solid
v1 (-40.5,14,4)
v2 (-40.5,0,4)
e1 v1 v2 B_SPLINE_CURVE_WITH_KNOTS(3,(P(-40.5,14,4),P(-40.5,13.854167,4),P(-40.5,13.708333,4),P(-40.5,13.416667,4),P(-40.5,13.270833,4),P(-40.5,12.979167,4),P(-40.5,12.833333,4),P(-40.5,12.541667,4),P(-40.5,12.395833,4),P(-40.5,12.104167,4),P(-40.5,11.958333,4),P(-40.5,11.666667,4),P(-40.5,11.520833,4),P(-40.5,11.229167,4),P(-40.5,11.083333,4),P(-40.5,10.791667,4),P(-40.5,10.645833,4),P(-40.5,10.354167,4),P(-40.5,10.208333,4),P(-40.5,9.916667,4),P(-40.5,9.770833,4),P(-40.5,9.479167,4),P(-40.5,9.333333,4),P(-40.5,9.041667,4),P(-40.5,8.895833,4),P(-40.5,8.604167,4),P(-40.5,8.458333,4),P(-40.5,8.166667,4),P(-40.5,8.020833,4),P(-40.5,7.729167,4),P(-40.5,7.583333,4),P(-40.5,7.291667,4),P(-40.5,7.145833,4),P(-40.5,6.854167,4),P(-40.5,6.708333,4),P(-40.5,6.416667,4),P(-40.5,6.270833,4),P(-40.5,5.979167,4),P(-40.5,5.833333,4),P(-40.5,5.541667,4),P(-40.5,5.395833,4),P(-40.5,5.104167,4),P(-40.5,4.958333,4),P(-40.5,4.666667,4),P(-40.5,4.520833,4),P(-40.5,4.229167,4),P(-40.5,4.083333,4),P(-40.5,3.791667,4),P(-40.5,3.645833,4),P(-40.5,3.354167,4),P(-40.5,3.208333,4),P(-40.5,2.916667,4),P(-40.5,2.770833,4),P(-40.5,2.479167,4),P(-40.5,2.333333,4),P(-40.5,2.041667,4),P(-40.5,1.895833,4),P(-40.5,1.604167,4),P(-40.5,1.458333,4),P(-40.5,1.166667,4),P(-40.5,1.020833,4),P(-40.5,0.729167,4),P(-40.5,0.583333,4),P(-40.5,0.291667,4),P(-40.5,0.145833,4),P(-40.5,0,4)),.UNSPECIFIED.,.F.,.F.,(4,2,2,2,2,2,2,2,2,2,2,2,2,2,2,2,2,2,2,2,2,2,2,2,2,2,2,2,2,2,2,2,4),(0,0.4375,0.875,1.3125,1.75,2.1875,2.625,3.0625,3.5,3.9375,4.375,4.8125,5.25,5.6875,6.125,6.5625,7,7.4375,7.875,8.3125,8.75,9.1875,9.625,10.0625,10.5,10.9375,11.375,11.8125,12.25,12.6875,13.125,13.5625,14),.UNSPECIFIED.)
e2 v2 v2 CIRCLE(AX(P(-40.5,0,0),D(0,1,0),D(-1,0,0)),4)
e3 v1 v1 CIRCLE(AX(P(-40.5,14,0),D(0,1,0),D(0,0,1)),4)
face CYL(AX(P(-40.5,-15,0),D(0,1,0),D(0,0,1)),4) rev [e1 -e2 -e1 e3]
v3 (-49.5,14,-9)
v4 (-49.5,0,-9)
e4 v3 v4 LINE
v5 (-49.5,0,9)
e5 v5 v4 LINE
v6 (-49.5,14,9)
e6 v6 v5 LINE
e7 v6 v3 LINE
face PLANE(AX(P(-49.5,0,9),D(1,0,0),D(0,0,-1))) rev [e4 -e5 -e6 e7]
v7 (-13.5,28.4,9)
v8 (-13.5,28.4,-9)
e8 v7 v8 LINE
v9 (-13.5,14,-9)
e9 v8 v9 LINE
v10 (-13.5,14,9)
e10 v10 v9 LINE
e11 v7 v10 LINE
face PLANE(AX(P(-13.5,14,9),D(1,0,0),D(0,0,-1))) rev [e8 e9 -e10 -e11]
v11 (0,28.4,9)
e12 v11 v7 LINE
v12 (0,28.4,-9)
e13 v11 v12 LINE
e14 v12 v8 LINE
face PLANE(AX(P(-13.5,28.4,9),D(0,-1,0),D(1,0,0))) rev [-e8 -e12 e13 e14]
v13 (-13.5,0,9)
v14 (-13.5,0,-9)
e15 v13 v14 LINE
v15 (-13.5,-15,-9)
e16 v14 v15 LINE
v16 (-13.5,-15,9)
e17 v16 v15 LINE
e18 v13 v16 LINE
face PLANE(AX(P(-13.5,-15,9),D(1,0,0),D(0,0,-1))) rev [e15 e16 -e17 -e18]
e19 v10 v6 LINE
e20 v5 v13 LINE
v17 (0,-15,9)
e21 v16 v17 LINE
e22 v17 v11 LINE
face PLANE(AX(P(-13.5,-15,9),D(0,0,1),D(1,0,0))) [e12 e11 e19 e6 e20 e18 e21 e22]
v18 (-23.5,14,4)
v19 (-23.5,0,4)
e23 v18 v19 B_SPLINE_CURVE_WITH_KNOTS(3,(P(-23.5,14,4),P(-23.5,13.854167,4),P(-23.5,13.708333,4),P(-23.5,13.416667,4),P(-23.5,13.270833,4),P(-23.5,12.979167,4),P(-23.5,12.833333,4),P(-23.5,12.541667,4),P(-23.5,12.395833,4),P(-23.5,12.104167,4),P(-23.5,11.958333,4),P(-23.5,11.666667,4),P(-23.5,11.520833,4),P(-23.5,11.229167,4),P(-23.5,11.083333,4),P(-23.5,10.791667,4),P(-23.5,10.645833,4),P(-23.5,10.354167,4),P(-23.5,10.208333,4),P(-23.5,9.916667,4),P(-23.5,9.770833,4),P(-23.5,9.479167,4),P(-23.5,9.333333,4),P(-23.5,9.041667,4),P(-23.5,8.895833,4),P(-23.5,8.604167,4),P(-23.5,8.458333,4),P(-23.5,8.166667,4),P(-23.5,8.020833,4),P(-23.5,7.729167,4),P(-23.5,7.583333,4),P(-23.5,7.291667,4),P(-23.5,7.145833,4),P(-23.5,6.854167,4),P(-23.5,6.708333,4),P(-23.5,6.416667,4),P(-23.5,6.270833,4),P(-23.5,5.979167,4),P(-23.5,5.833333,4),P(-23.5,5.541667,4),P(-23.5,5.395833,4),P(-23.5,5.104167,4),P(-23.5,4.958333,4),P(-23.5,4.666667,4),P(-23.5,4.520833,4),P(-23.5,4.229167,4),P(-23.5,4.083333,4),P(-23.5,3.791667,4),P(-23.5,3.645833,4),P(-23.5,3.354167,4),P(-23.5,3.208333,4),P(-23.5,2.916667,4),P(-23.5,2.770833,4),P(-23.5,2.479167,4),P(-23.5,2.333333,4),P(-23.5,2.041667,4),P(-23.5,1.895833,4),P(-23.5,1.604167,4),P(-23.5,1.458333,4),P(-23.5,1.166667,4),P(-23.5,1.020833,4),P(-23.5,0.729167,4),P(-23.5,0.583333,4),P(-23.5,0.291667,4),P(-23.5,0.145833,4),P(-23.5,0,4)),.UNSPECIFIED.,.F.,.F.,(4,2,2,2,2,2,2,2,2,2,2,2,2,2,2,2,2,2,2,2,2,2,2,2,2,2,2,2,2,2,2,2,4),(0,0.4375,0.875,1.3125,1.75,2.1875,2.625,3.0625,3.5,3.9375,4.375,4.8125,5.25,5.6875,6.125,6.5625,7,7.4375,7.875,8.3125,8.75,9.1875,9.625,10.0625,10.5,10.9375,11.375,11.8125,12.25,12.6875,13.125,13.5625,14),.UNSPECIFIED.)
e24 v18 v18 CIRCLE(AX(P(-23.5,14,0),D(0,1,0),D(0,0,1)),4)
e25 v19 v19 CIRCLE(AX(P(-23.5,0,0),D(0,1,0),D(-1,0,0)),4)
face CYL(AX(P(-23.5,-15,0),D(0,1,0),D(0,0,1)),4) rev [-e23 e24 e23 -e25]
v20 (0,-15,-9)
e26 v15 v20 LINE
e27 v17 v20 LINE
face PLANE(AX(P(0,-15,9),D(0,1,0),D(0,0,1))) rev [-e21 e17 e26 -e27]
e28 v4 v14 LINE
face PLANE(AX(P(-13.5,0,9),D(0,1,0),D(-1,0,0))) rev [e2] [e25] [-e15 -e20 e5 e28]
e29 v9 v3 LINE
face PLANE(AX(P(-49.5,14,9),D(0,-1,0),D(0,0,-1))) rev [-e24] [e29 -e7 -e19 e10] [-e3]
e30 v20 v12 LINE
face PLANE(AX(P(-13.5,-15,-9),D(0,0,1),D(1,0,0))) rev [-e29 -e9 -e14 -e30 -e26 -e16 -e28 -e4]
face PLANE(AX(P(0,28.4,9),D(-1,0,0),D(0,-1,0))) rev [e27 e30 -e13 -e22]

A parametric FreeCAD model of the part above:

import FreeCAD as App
import Part
import Sketcher

V = App.Vector
Q = App.Units.Quantity

doc = App.newDocument("Part")
params = doc.addObject("Spreadsheet::Sheet", "Params")
for row, (alias, value) in enumerate([
    ("sketch1_width", "36 mm"),
    ("sketch1_height", "14 mm"),
    ("sketch1_height2", "15 mm"),
    ("sketch1_width2", "13.5 mm"),
    ("sketch1_height3", "14.4 mm"),
    ("pad1_length", "18 mm"),
    ("sketch2_diameter", "8 mm"),
], start=1):
    params.set(f"A{row}", alias)
    params.set(f"B{row}", "=" + value)
    params.setAlias(f"B{row}", alias)

body = doc.addObject("PartDesign::Body", "Body")

sketch1 = body.newObject("Sketcher::SketchObject", "Sketch")
sketch1.AttachmentSupport = (doc.getObject("XY_Plane"), [""])
sketch1.MapMode = "FlatFace"
sketch1.addGeometry([
    Part.LineSegment(V(0, 28, 0), V(-14, 28, 0)),
    Part.LineSegment(V(-14, 28, 0), V(-14, 14, 0)),
    Part.LineSegment(V(-14, 14, 0), V(-50, 14, 0)),
    Part.LineSegment(V(-50, 14, 0), V(-50, 0, 0)),
    Part.LineSegment(V(-50, 0, 0), V(-14, 0, 0)),
    Part.LineSegment(V(-14, 0, 0), V(-14, -15, 0)),
    Part.LineSegment(V(-14, -15, 0), V(0, -15, 0)),
    Part.LineSegment(V(0, -15, 0), V(0, 28, 0)),
], False)
sketch1.addConstraint([
    Sketcher.Constraint("Coincident", 0, 2, 1, 1),
    Sketcher.Constraint("Coincident", 1, 2, 2, 1),
    Sketcher.Constraint("Coincident", 2, 2, 3, 1),
    Sketcher.Constraint("Coincident", 3, 2, 4, 1),
    Sketcher.Constraint("Coincident", 4, 2, 5, 1),
    Sketcher.Constraint("Coincident", 5, 2, 6, 1),
    Sketcher.Constraint("Coincident", 6, 2, 7, 1),
    Sketcher.Constraint("Coincident", 7, 2, 0, 1),
    Sketcher.Constraint("Horizontal", 0),
    Sketcher.Constraint("Vertical", 1),
    Sketcher.Constraint("Horizontal", 2),
    Sketcher.Constraint("Vertical", 3),
    Sketcher.Constraint("Horizontal", 4),
    Sketcher.Constraint("Vertical", 5),
    Sketcher.Constraint("Horizontal", 6),
    Sketcher.Constraint("Vertical", 7),
    Sketcher.Constraint("PointOnObject", 3, 2, -1),
    Sketcher.Constraint("PointOnObject", 6, 2, -2),
    Sketcher.Constraint("Vertical", 1, 2, 4, 2),
    Sketcher.Constraint("DistanceX", 2, 2, 2, 1, Q("36 mm")),
    Sketcher.Constraint("DistanceY", 3, 2, 3, 1, Q("14 mm")),
    Sketcher.Constraint("DistanceY", 5, 2, 5, 1, Q("15 mm")),
    Sketcher.Constraint("DistanceX", 0, 2, 0, 1, Q("13.5 mm")),
    Sketcher.Constraint("DistanceY", 1, 2, 1, 1, Q("14.4 mm")),
])
sketch1.setExpression("Constraints[19]", "Params.sketch1_width")
sketch1.setExpression("Constraints[20]", "Params.sketch1_height")
sketch1.setExpression("Constraints[21]", "Params.sketch1_height2")
sketch1.setExpression("Constraints[22]", "Params.sketch1_width2")
sketch1.setExpression("Constraints[23]", "Params.sketch1_height3")
pad1 = body.newObject("PartDesign::Pad", "Pad")
pad1.Profile = sketch1
pad1.setExpression("Length", "Params.pad1_length")
pad1.Midplane = True

sketch2 = body.newObject("Sketcher::SketchObject", "Sketch001")
sketch2.AttachmentSupport = (doc.getObject("XZ_Plane"), [""])
sketch2.MapMode = "FlatFace"
sketch2.AttachmentOffset = App.Placement(V(0, 0, -14), App.Rotation())
sketch2.addGeometry([
    Part.Circle(V(-40.5, 0, 0), V(0, 0, 1), 4),
    Part.Circle(V(-23.5, 0, 0), V(0, 0, 1), 4),
], False)
sketch2.addConstraint([
    Sketcher.Constraint("Equal", 0, 1),
    Sketcher.Constraint("PointOnObject", 0, 3, -1),
    Sketcher.Constraint("PointOnObject", 1, 3, -1),
    Sketcher.Constraint("Diameter", 0, Q("8 mm")),
    Sketcher.Constraint("DistanceX", 0, 3, 1, 3, Q("17 mm")),
    Sketcher.Constraint("DistanceX", 0, 3, -1, 1, Q("40.5 mm")),
])
sketch2.setExpression("Constraints[3]", "Params.sketch2_diameter")
pocket1 = body.newObject("PartDesign::Pocket", "Pocket")
pocket1.Profile = sketch2
pocket1.Type = "ThroughAll"
pocket1.Reversed = True

doc.recompute()
